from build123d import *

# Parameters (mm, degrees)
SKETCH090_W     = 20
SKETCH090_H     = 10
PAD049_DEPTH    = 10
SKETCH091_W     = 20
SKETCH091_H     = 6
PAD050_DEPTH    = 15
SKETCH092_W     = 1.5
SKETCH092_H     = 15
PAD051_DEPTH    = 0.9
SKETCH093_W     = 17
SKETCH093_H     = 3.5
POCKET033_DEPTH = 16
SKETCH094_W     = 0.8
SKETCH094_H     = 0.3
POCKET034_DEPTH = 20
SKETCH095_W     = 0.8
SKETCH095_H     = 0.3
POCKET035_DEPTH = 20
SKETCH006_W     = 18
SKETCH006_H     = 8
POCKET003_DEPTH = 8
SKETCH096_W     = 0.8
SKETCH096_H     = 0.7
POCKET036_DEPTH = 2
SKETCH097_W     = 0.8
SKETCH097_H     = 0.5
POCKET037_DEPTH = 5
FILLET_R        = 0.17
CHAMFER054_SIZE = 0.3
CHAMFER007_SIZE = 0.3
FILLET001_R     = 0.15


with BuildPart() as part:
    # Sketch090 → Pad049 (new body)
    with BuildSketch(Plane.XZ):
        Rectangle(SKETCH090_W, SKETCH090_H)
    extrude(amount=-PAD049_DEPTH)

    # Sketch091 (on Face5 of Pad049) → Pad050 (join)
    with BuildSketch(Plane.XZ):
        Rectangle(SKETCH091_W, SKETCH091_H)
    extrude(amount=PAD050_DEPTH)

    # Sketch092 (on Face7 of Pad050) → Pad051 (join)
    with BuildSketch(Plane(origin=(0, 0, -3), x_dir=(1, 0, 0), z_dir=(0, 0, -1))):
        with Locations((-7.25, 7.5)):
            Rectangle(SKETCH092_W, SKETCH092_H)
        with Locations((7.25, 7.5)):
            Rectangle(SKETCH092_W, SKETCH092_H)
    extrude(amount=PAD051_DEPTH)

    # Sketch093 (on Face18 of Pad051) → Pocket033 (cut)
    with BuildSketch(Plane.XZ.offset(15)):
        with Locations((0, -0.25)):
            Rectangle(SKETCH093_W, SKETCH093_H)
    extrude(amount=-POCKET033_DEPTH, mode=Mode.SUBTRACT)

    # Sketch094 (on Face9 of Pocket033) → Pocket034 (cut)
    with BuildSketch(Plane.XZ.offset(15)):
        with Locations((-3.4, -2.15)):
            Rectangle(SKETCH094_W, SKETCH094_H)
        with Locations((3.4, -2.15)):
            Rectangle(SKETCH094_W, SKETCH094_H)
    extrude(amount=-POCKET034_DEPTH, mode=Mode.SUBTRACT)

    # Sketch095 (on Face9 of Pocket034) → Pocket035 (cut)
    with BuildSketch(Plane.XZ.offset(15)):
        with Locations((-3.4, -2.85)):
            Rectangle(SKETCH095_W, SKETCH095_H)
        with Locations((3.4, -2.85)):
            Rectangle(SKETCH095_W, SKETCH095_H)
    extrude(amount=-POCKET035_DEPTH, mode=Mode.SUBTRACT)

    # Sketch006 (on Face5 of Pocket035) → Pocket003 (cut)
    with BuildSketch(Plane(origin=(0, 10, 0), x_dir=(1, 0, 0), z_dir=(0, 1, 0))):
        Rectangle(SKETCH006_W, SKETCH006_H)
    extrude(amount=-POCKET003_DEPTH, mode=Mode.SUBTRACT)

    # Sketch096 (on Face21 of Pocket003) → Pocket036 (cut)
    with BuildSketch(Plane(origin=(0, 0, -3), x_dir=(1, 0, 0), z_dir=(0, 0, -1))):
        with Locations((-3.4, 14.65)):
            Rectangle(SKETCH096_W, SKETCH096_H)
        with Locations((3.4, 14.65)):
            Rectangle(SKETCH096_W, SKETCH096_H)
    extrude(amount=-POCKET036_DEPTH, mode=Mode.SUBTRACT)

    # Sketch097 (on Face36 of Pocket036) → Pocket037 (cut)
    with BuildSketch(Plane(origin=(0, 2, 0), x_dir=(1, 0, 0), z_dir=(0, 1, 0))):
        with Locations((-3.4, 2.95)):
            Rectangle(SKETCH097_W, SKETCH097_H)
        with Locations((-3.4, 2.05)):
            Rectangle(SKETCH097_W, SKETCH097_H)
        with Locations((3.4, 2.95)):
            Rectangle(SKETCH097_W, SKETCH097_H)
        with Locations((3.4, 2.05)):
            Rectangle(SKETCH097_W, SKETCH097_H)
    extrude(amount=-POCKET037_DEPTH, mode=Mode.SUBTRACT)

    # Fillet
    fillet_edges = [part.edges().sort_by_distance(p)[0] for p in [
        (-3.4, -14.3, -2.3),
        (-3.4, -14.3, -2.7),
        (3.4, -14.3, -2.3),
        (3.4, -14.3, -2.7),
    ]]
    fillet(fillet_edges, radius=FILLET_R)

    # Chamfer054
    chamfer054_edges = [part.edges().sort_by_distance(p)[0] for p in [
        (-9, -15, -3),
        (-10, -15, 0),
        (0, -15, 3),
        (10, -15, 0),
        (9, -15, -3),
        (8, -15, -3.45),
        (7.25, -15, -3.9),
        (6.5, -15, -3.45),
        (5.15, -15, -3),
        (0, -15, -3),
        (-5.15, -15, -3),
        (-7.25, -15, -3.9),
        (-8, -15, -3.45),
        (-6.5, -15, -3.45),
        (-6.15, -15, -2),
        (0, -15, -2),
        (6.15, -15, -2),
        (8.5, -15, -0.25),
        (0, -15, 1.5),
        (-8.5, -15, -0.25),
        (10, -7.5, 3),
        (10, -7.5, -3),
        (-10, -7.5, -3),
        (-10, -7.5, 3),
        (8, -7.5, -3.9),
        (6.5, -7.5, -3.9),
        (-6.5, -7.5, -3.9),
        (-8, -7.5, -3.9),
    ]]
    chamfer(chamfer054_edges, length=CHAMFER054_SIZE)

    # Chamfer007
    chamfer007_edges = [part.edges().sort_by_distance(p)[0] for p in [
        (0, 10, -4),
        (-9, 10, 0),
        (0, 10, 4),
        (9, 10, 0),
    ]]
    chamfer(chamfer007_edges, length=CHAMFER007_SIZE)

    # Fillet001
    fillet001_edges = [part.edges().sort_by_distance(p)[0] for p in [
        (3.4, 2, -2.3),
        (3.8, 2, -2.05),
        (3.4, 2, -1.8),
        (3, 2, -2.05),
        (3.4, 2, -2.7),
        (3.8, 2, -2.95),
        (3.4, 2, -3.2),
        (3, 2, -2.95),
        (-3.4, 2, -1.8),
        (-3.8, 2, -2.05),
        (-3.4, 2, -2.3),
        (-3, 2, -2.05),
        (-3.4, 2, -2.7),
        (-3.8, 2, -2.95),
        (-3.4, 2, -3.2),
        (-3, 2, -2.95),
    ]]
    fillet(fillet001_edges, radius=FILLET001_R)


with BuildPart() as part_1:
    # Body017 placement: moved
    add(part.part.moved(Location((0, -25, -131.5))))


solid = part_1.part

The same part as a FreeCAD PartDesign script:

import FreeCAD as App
import Part
import Sketcher

V = App.Vector


def edges_at(feature, points):
    """Names of the edges that pass closest to the given points."""
    edges = feature.Shape.Edges
    near = lambda p: min(range(len(edges)), key=lambda i: edges[i].distToShape(Part.Vertex(*p))[0])
    return sorted({f"Edge{near(p) + 1}" for p in points})

doc = App.newDocument("Part")
body = doc.addObject("PartDesign::Body", "Body")

# Sketch on XZ plane
sketch1 = body.newObject("Sketcher::SketchObject", "Sketch")
sketch1.AttachmentSupport = (doc.getObject("XZ_Plane"), [""])
sketch1.MapMode = "FlatFace"
sketch1.addGeometry([
    Part.LineSegment(V(-10, 5, 0), V(-10, -5, 0)),
    Part.LineSegment(V(-10, -5, 0), V(10, -5, 0)),
    Part.LineSegment(V(10, -5, 0), V(10, 5, 0)),
    Part.LineSegment(V(10, 5, 0), V(-10, 5, 0)),
], False)
sketch1.addConstraint([
    Sketcher.Constraint("Coincident", 0, 2, 1, 1),
    Sketcher.Constraint("Coincident", 1, 2, 2, 1),
    Sketcher.Constraint("Coincident", 2, 2, 3, 1),
    Sketcher.Constraint("Coincident", 3, 2, 0, 1),
    Sketcher.Constraint("Vertical", 0),
    Sketcher.Constraint("Horizontal", 1),
    Sketcher.Constraint("Vertical", 2),
    Sketcher.Constraint("Horizontal", 3),
    Sketcher.Constraint("Symmetric", 0, 2, 2, 2, -1, 1),
    Sketcher.Constraint("DistanceX", 1, 1, 1, 2, 20.0),
    Sketcher.Constraint("DistanceY", 0, 2, 0, 1, 10.0),
])
pad1 = body.newObject("PartDesign::Pad", "Pad")
pad1.Profile = sketch1
pad1.Length = 10
pad1.Reversed = True

# Sketch on XZ plane
sketch2 = body.newObject("Sketcher::SketchObject", "Sketch001")
sketch2.AttachmentSupport = (doc.getObject("XZ_Plane"), [""])
sketch2.MapMode = "FlatFace"
sketch2.addGeometry([
    Part.LineSegment(V(-10, 3, 0), V(-10, -3, 0)),
    Part.LineSegment(V(-10, -3, 0), V(10, -3, 0)),
    Part.LineSegment(V(10, -3, 0), V(10, 3, 0)),
    Part.LineSegment(V(10, 3, 0), V(-10, 3, 0)),
], False)
sketch2.addConstraint([
    Sketcher.Constraint("Coincident", 0, 2, 1, 1),
    Sketcher.Constraint("Coincident", 1, 2, 2, 1),
    Sketcher.Constraint("Coincident", 2, 2, 3, 1),
    Sketcher.Constraint("Coincident", 3, 2, 0, 1),
    Sketcher.Constraint("Vertical", 0),
    Sketcher.Constraint("Horizontal", 1),
    Sketcher.Constraint("Vertical", 2),
    Sketcher.Constraint("Horizontal", 3),
    Sketcher.Constraint("Symmetric", 0, 2, 2, 2, -1, 1),
    Sketcher.Constraint("DistanceX", 1, 1, 1, 2, 20.0),
    Sketcher.Constraint("DistanceY", 0, 2, 0, 1, 6.0),
])
pad2 = body.newObject("PartDesign::Pad", "Pad001")
pad2.Profile = sketch2
pad2.Length = 15

# Sketch on XY plane
sketch3 = body.newObject("Sketcher::SketchObject", "Sketch002")
sketch3.AttachmentSupport = (doc.getObject("XY_Plane"), [""])
sketch3.MapMode = "FlatFace"
sketch3.AttachmentOffset = App.Placement(V(0, 0, -3), App.Rotation())
sketch3.addGeometry([
    Part.LineSegment(V(-8, -15, 0), V(-8, 0, 0)),  # 0
    Part.LineSegment(V(-8, 0, 0), V(-6.5, 0, 0)),  # 1
    Part.LineSegment(V(-6.5, 0, 0), V(-6.5, -15, 0)),  # 2
    Part.LineSegment(V(-6.5, -15, 0), V(-8, -15, 0)),  # 3
    Part.LineSegment(V(6.5, -15, 0), V(6.5, 0, 0)),  # 4
    Part.LineSegment(V(6.5, 0, 0), V(8, 0, 0)),  # 5
    Part.LineSegment(V(8, 0, 0), V(8, -15, 0)),  # 6
    Part.LineSegment(V(8, -15, 0), V(6.5, -15, 0)),  # 7
], False)
sketch3.addConstraint([
    Sketcher.Constraint("Coincident", 0, 2, 1, 1),
    Sketcher.Constraint("Coincident", 1, 2, 2, 1),
    Sketcher.Constraint("Coincident", 2, 2, 3, 1),
    Sketcher.Constraint("Coincident", 3, 2, 0, 1),
    Sketcher.Constraint("Coincident", 4, 2, 5, 1),
    Sketcher.Constraint("Coincident", 5, 2, 6, 1),
    Sketcher.Constraint("Coincident", 6, 2, 7, 1),
    Sketcher.Constraint("Coincident", 7, 2, 4, 1),
    Sketcher.Constraint("Vertical", 0),
    Sketcher.Constraint("Horizontal", 1),
    Sketcher.Constraint("Vertical", 2),
    Sketcher.Constraint("Horizontal", 3),
    Sketcher.Constraint("Vertical", 4),
    Sketcher.Constraint("Horizontal", 5),
    Sketcher.Constraint("Vertical", 6),
    Sketcher.Constraint("Horizontal", 7),
    Sketcher.Constraint("Symmetric", 1, 2, 4, 2, -1, 1),
    Sketcher.Constraint("Symmetric", 0, 2, 5, 2, -2),
    Sketcher.Constraint("Horizontal", 3, 2, 6, 2),
    Sketcher.Constraint("DistanceY", 0, 1, 0, 2, 15.0),
    Sketcher.Constraint("DistanceX", 1, 1, 1, 2, 1.5),
    Sketcher.Constraint("DistanceX", 0, 2, -1, 1, 8.0),
])
pad3 = body.newObject("PartDesign::Pad", "Pad002")
pad3.Profile = sketch3
pad3.Length = 0.9
pad3.Reversed = True

# Sketch on XZ plane
sketch4 = body.newObject("Sketcher::SketchObject", "Sketch003")
sketch4.AttachmentSupport = (doc.getObject("XZ_Plane"), [""])
sketch4.MapMode = "FlatFace"
sketch4.AttachmentOffset = App.Placement(V(0, 0, 15), App.Rotation())
sketch4.addGeometry([
    Part.LineSegment(V(-8.5, 1.5, 0), V(-8.5, -2, 0)),
    Part.LineSegment(V(-8.5, -2, 0), V(8.5, -2, 0)),
    Part.LineSegment(V(8.5, -2, 0), V(8.5, 1.5, 0)),
    Part.LineSegment(V(8.5, 1.5, 0), V(-8.5, 1.5, 0)),
], False)
sketch4.addConstraint([
    Sketcher.Constraint("Coincident", 0, 2, 1, 1),
    Sketcher.Constraint("Coincident", 1, 2, 2, 1),
    Sketcher.Constraint("Coincident", 2, 2, 3, 1),
    Sketcher.Constraint("Coincident", 3, 2, 0, 1),
    Sketcher.Constraint("Vertical", 0),
    Sketcher.Constraint("Horizontal", 1),
    Sketcher.Constraint("Vertical", 2),
    Sketcher.Constraint("Horizontal", 3),
    Sketcher.Constraint("DistanceX", 1, 1, 1, 2, 17.0),
    Sketcher.Constraint("DistanceY", 0, 2, 0, 1, 3.5),
    Sketcher.Constraint("DistanceY", 0, 2, -1, 1, 2.0),
    Sketcher.Constraint("DistanceX", 0, 2, -1, 1, 8.5),
])
pocket1 = body.newObject("PartDesign::Pocket", "Pocket")
pocket1.Profile = sketch4
pocket1.Length = 16

# Sketch on XZ plane
sketch5 = body.newObject("Sketcher::SketchObject", "Sketch004")
sketch5.AttachmentSupport = (doc.getObject("XZ_Plane"), [""])
sketch5.MapMode = "FlatFace"
sketch5.AttachmentOffset = App.Placement(V(0, 0, 15), App.Rotation())
sketch5.addGeometry([
    Part.LineSegment(V(-3.8, -2, 0), V(-3.8, -2.3, 0)),  # 0
    Part.LineSegment(V(-3.8, -2.3, 0), V(-3, -2.3, 0)),  # 1
    Part.LineSegment(V(-3, -2.3, 0), V(-3, -2, 0)),  # 2
    Part.LineSegment(V(-3, -2, 0), V(-3.8, -2, 0)),  # 3
    Part.LineSegment(V(3, -2, 0), V(3, -2.3, 0)),  # 4
    Part.LineSegment(V(3, -2.3, 0), V(3.8, -2.3, 0)),  # 5
    Part.LineSegment(V(3.8, -2.3, 0), V(3.8, -2, 0)),  # 6
    Part.LineSegment(V(3.8, -2, 0), V(3, -2, 0)),  # 7
], False)
sketch5.addConstraint([
    Sketcher.Constraint("Coincident", 0, 2, 1, 1),
    Sketcher.Constraint("Coincident", 1, 2, 2, 1),
    Sketcher.Constraint("Coincident", 2, 2, 3, 1),
    Sketcher.Constraint("Coincident", 3, 2, 0, 1),
    Sketcher.Constraint("Coincident", 4, 2, 5, 1),
    Sketcher.Constraint("Coincident", 5, 2, 6, 1),
    Sketcher.Constraint("Coincident", 6, 2, 7, 1),
    Sketcher.Constraint("Coincident", 7, 2, 4, 1),
    Sketcher.Constraint("Vertical", 0),
    Sketcher.Constraint("Horizontal", 1),
    Sketcher.Constraint("Vertical", 2),
    Sketcher.Constraint("Horizontal", 3),
    Sketcher.Constraint("Vertical", 4),
    Sketcher.Constraint("Horizontal", 5),
    Sketcher.Constraint("Vertical", 6),
    Sketcher.Constraint("Horizontal", 7),
    Sketcher.Constraint("Symmetric", 1, 2, 4, 2, -2),
    Sketcher.Constraint("Symmetric", 3, 2, 6, 2, -2),
    Sketcher.Constraint("DistanceX", 1, 1, 1, 2, 0.8),
    Sketcher.Constraint("DistanceY", 0, 2, 0, 1, 0.3),
    Sketcher.Constraint("DistanceX", 1, 2, -1, 1, 3.0),
    Sketcher.Constraint("DistanceY", 2, 2, -1, 1, 2.0),
])
pocket2 = body.newObject("PartDesign::Pocket", "Pocket001")
pocket2.Profile = sketch5
pocket2.Length = 20

# Sketch on XZ plane
sketch6 = body.newObject("Sketcher::SketchObject", "Sketch005")
sketch6.AttachmentSupport = (doc.getObject("XZ_Plane"), [""])
sketch6.MapMode = "FlatFace"
sketch6.AttachmentOffset = App.Placement(V(0, 0, 15), App.Rotation())
sketch6.addGeometry([
    Part.LineSegment(V(-3.8, -2.7, 0), V(-3.8, -3, 0)),  # 0
    Part.LineSegment(V(-3.8, -3, 0), V(-3, -3, 0)),  # 1
    Part.LineSegment(V(-3, -3, 0), V(-3, -2.7, 0)),  # 2
    Part.LineSegment(V(-3, -2.7, 0), V(-3.8, -2.7, 0)),  # 3
    Part.LineSegment(V(3, -2.7, 0), V(3, -3, 0)),  # 4
    Part.LineSegment(V(3, -3, 0), V(3.8, -3, 0)),  # 5
    Part.LineSegment(V(3.8, -3, 0), V(3.8, -2.7, 0)),  # 6
    Part.LineSegment(V(3.8, -2.7, 0), V(3, -2.7, 0)),  # 7
], False)
sketch6.addConstraint([
    Sketcher.Constraint("Coincident", 0, 2, 1, 1),
    Sketcher.Constraint("Coincident", 1, 2, 2, 1),
    Sketcher.Constraint("Coincident", 2, 2, 3, 1),
    Sketcher.Constraint("Coincident", 3, 2, 0, 1),
    Sketcher.Constraint("Coincident", 4, 2, 5, 1),
    Sketcher.Constraint("Coincident", 5, 2, 6, 1),
    Sketcher.Constraint("Coincident", 6, 2, 7, 1),
    Sketcher.Constraint("Coincident", 7, 2, 4, 1),
    Sketcher.Constraint("Vertical", 0),
    Sketcher.Constraint("Horizontal", 1),
    Sketcher.Constraint("Vertical", 2),
    Sketcher.Constraint("Horizontal", 3),
    Sketcher.Constraint("Vertical", 4),
    Sketcher.Constraint("Horizontal", 5),
    Sketcher.Constraint("Vertical", 6),
    Sketcher.Constraint("Horizontal", 7),
    Sketcher.Constraint("Symmetric", 1, 2, 4, 2, -2),
    Sketcher.Constraint("Symmetric", 3, 2, 6, 2, -2),
    Sketcher.Constraint("DistanceX", 1, 1, 1, 2, 0.8),
    Sketcher.Constraint("DistanceY", 0, 2, 0, 1, 0.3),
    Sketcher.Constraint("DistanceY", 0, 2, -1, 1, 3.0),
    Sketcher.Constraint("DistanceX", 1, 2, -1, 1, 3.0),
])
pocket3 = body.newObject("PartDesign::Pocket", "Pocket002")
pocket3.Profile = sketch6
pocket3.Length = 20

# Sketch on XZ plane
sketch7 = body.newObject("Sketcher::SketchObject", "Sketch006")
sketch7.AttachmentSupport = (doc.getObject("XZ_Plane"), [""])
sketch7.MapMode = "FlatFace"
sketch7.AttachmentOffset = App.Placement(V(0, 0, -10), App.Rotation())
sketch7.addGeometry([
    Part.LineSegment(V(-9, -4, 0), V(-9, 4, 0)),
    Part.LineSegment(V(-9, 4, 0), V(9, 4, 0)),
    Part.LineSegment(V(9, 4, 0), V(9, -4, 0)),
    Part.LineSegment(V(9, -4, 0), V(-9, -4, 0)),
], False)
sketch7.addConstraint([
    Sketcher.Constraint("Coincident", 0, 2, 1, 1),
    Sketcher.Constraint("Coincident", 1, 2, 2, 1),
    Sketcher.Constraint("Coincident", 2, 2, 3, 1),
    Sketcher.Constraint("Coincident", 3, 2, 0, 1),
    Sketcher.Constraint("Vertical", 0),
    Sketcher.Constraint("Horizontal", 1),
    Sketcher.Constraint("Vertical", 2),
    Sketcher.Constraint("Horizontal", 3),
    Sketcher.Constraint("Symmetric", 0, 2, 2, 2, -1, 1),
    Sketcher.Constraint("DistanceX", 1, 1, 1, 2, 18.0),
    Sketcher.Constraint("DistanceY", 0, 1, 0, 2, 8.0),
])
pocket4 = body.newObject("PartDesign::Pocket", "Pocket003")
pocket4.Profile = sketch7
pocket4.Length = 8
pocket4.Reversed = True

# Sketch on XY plane
sketch8 = body.newObject("Sketcher::SketchObject", "Sketch007")
sketch8.AttachmentSupport = (doc.getObject("XY_Plane"), [""])
sketch8.MapMode = "FlatFace"
sketch8.AttachmentOffset = App.Placement(V(0, 0, -3), App.Rotation())
sketch8.addGeometry([
    Part.LineSegment(V(-3.8, -15, 0), V(-3.8, -14.3, 0)),  # 0
    Part.LineSegment(V(-3.8, -14.3, 0), V(-3, -14.3, 0)),  # 1
    Part.LineSegment(V(-3, -14.3, 0), V(-3, -15, 0)),  # 2
    Part.LineSegment(V(-3, -15, 0), V(-3.8, -15, 0)),  # 3
    Part.LineSegment(V(3, -15, 0), V(3, -14.3, 0)),  # 4
    Part.LineSegment(V(3, -14.3, 0), V(3.8, -14.3, 0)),  # 5
    Part.LineSegment(V(3.8, -14.3, 0), V(3.8, -15, 0)),  # 6
    Part.LineSegment(V(3.8, -15, 0), V(3, -15, 0)),  # 7
], False)
sketch8.addConstraint([
    Sketcher.Constraint("Coincident", 0, 2, 1, 1),
    Sketcher.Constraint("Coincident", 1, 2, 2, 1),
    Sketcher.Constraint("Coincident", 2, 2, 3, 1),
    Sketcher.Constraint("Coincident", 3, 2, 0, 1),
    Sketcher.Constraint("Coincident", 4, 2, 5, 1),
    Sketcher.Constraint("Coincident", 5, 2, 6, 1),
    Sketcher.Constraint("Coincident", 6, 2, 7, 1),
    Sketcher.Constraint("Coincident", 7, 2, 4, 1),
    Sketcher.Constraint("Vertical", 0),
    Sketcher.Constraint("Horizontal", 1),
    Sketcher.Constraint("Vertical", 2),
    Sketcher.Constraint("Horizontal", 3),
    Sketcher.Constraint("Vertical", 4),
    Sketcher.Constraint("Horizontal", 5),
    Sketcher.Constraint("Vertical", 6),
    Sketcher.Constraint("Horizontal", 7),
    Sketcher.Constraint("Symmetric", 1, 2, 4, 2, -2),
    Sketcher.Constraint("Symmetric", 3, 2, 6, 2, -2),
    Sketcher.Constraint("DistanceX", 1, 1, 1, 2, 0.8),
    Sketcher.Constraint("DistanceY", 0, 1, 0, 2, 0.7),
    Sketcher.Constraint("DistanceX", 1, 2, -1, 1, 3.0),
    Sketcher.Constraint("DistanceY", 2, 2, -1, 1, 15.0),
])
pocket5 = body.newObject("PartDesign::Pocket", "Pocket004")
pocket5.Profile = sketch8
pocket5.Length = 2
pocket5.Reversed = True

# Sketch on XZ plane
sketch9 = body.newObject("Sketcher::SketchObject", "Sketch008")
sketch9.AttachmentSupport = (doc.getObject("XZ_Plane"), [""])
sketch9.MapMode = "FlatFace"
sketch9.AttachmentOffset = App.Placement(V(0, 0, -2), App.Rotation())
sketch9.addGeometry([
    Part.LineSegment(V(-3.8, -3.2, 0), V(-3.8, -2.7, 0)),  # 0
    Part.LineSegment(V(-3.8, -2.7, 0), V(-3, -2.7, 0)),  # 1
    Part.LineSegment(V(-3, -2.7, 0), V(-3, -3.2, 0)),  # 2
    Part.LineSegment(V(-3, -3.2, 0), V(-3.8, -3.2, 0)),  # 3
    Part.LineSegment(V(-3.8, -2.3, 0), V(-3.8, -1.8, 0)),  # 4
    Part.LineSegment(V(-3.8, -1.8, 0), V(-3, -1.8, 0)),  # 5
    Part.LineSegment(V(-3, -1.8, 0), V(-3, -2.3, 0)),  # 6
    Part.LineSegment(V(-3, -2.3, 0), V(-3.8, -2.3, 0)),  # 7
    Part.LineSegment(V(3, -3.2, 0), V(3, -2.7, 0)),  # 8
    Part.LineSegment(V(3, -2.7, 0), V(3.8, -2.7, 0)),  # 9
    Part.LineSegment(V(3.8, -2.7, 0), V(3.8, -3.2, 0)),  # 10
    Part.LineSegment(V(3.8, -3.2, 0), V(3, -3.2, 0)),  # 11
    Part.LineSegment(V(3, -2.3, 0), V(3, -1.8, 0)),  # 12
    Part.LineSegment(V(3, -1.8, 0), V(3.8, -1.8, 0)),  # 13
    Part.LineSegment(V(3.8, -1.8, 0), V(3.8, -2.3, 0)),  # 14
    Part.LineSegment(V(3.8, -2.3, 0), V(3, -2.3, 0)),  # 15
], False)
sketch9.addConstraint([
    Sketcher.Constraint("Coincident", 0, 2, 1, 1),
    Sketcher.Constraint("Coincident", 1, 2, 2, 1),
    Sketcher.Constraint("Coincident", 2, 2, 3, 1),
    Sketcher.Constraint("Coincident", 3, 2, 0, 1),
    Sketcher.Constraint("Coincident", 4, 2, 5, 1),
    Sketcher.Constraint("Coincident", 5, 2, 6, 1),
    Sketcher.Constraint("Coincident", 6, 2, 7, 1),
    Sketcher.Constraint("Coincident", 7, 2, 4, 1),
    Sketcher.Constraint("Coincident", 8, 2, 9, 1),
    Sketcher.Constraint("Coincident", 9, 2, 10, 1),
    Sketcher.Constraint("Coincident", 10, 2, 11, 1),
    Sketcher.Constraint("Coincident", 11, 2, 8, 1),
    Sketcher.Constraint("Coincident", 12, 2, 13, 1),
    Sketcher.Constraint("Coincident", 13, 2, 14, 1),
    Sketcher.Constraint("Coincident", 14, 2, 15, 1),
    Sketcher.Constraint("Coincident", 15, 2, 12, 1),
    Sketcher.Constraint("Vertical", 0),
    Sketcher.Constraint("Horizontal", 1),
    Sketcher.Constraint("Vertical", 2),
    Sketcher.Constraint("Horizontal", 3),
    Sketcher.Constraint("Vertical", 4),
    Sketcher.Constraint("Horizontal", 5),
    Sketcher.Constraint("Vertical", 6),
    Sketcher.Constraint("Horizontal", 7),
    Sketcher.Constraint("Vertical", 8),
    Sketcher.Constraint("Horizontal", 9),
    Sketcher.Constraint("Vertical", 10),
    Sketcher.Constraint("Horizontal", 11),
    Sketcher.Constraint("Vertical", 12),
    Sketcher.Constraint("Horizontal", 13),
    Sketcher.Constraint("Vertical", 14),
    Sketcher.Constraint("Horizontal", 15),
    Sketcher.Constraint("Symmetric", 1, 2, 8, 2, -2),
    Sketcher.Constraint("Symmetric", 3, 2, 10, 2, -2),
    Sketcher.Constraint("Symmetric", 5, 2, 12, 2, -2),
    Sketcher.Constraint("Symmetric", 7, 2, 14, 2, -2),
    Sketcher.Constraint("Vertical", 3, 2, 4, 2),
    Sketcher.Constraint("Vertical", 2, 2, 5, 2),
    Sketcher.Constraint("Equal", 2, 4),
    Sketcher.Constraint("DistanceX", 1, 1, 1, 2, 0.8),
    Sketcher.Constraint("DistanceY", 0, 1, 0, 2, 0.5),
    Sketcher.Constraint("DistanceX", 1, 2, -1, 1, 3.0),
    Sketcher.Constraint("DistanceY", 0, 2, -1, 1, 2.7),
    Sketcher.Constraint("DistanceY", 4, 2, -1, 1, 1.8),
])
pocket6 = body.newObject("PartDesign::Pocket", "Pocket005")
pocket6.Profile = sketch9
pocket6.Length = 5
pocket6.Reversed = True
doc.recompute()

fillet = body.newObject("PartDesign::Fillet", "Fillet")
fillet.Base = (pocket6, edges_at(pocket6, [
    (-3.4, -14.3, -2.3),
    (-3.4, -14.3, -2.7),
    (3.4, -14.3, -2.3),
    (3.4, -14.3, -2.7),
]))
fillet.Radius = 0.17
doc.recompute()

chamfer = body.newObject("PartDesign::Chamfer", "Chamfer")
chamfer.Base = (fillet, edges_at(fillet, [
    (-9, -15, -3),
    (-10, -15, 0),
    (0, -15, 3),
    (10, -15, 0),
    (9, -15, -3),
    (8, -15, -3.45),
    (7.25, -15, -3.9),
    (6.5, -15, -3.45),
    (5.15, -15, -3),
    (0, -15, -3),
    (-5.15, -15, -3),
    (-7.25, -15, -3.9),
    (-8, -15, -3.45),
    (-6.5, -15, -3.45),
    (-6.15, -15, -2),
    (0, -15, -2),
    (6.15, -15, -2),
    (8.5, -15, -0.25),
    (0, -15, 1.5),
    (-8.5, -15, -0.25),
    (10, -7.5, 3),
    (10, -7.5, -3),
    (-10, -7.5, -3),
    (-10, -7.5, 3),
    (8, -7.5, -3.9),
    (6.5, -7.5, -3.9),
    (-6.5, -7.5, -3.9),
    (-8, -7.5, -3.9),
]))
chamfer.Size = 0.3
doc.recompute()

chamfer2 = body.newObject("PartDesign::Chamfer", "Chamfer001")
chamfer2.Base = (chamfer, edges_at(chamfer, [
    (0, 10, -4),
    (-9, 10, 0),
    (0, 10, 4),
    (9, 10, 0),
]))
chamfer2.Size = 0.3
doc.recompute()

fillet2 = body.newObject("PartDesign::Fillet", "Fillet001")
fillet2.Base = (chamfer2, edges_at(chamfer2, [
    (3.4, 2, -2.3),
    (3.8, 2, -2.05),
    (3.4, 2, -1.8),
    (3, 2, -2.05),
    (3.4, 2, -2.7),
    (3.8, 2, -2.95),
    (3.4, 2, -3.2),
    (3, 2, -2.95),
    (-3.4, 2, -1.8),
    (-3.8, 2, -2.05),
    (-3.4, 2, -2.3),
    (-3, 2, -2.05),
    (-3.4, 2, -2.7),
    (-3.8, 2, -2.95),
    (-3.4, 2, -3.2),
    (-3, 2, -2.95),
]))
fillet2.Radius = 0.15
body2 = doc.addObject("PartDesign::Body", "Body001")
doc.recompute()

body.Placement = App.Placement(V(0, -25, -131.5), App.Rotation(V(0, 0, 1), 0))
boolean = body2.newObject("PartDesign::Boolean", "Boolean")
boolean.Type = "Fuse"
boolean.addObjects([body])

doc.recompute()
